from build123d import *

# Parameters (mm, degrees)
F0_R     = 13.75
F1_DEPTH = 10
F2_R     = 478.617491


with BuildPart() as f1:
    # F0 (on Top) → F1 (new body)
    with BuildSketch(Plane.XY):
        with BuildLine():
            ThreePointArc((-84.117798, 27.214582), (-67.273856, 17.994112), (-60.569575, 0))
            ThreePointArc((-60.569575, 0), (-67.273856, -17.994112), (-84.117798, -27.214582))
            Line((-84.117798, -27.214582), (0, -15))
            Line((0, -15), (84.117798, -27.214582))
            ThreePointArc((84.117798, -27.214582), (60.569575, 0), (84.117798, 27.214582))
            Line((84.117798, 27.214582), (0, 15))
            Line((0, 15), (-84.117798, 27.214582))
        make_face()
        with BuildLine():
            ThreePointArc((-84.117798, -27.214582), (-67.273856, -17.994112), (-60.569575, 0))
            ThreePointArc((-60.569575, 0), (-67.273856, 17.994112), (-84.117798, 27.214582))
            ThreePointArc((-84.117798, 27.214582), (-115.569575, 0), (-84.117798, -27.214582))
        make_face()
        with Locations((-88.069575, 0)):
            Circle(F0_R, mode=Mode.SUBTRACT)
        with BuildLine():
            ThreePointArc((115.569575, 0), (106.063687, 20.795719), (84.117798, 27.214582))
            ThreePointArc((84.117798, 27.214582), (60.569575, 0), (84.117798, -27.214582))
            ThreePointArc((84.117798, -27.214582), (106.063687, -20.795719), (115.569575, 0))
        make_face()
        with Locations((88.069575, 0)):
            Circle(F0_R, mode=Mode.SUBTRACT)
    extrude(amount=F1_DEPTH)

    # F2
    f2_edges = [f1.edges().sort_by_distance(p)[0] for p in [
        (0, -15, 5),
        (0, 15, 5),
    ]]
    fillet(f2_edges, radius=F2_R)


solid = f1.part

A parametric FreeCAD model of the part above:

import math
import FreeCAD as App
import Part
import Sketcher


def edges_at(feature, points):
    """Names of the edges that pass closest to the given points."""
    edges = feature.Shape.Edges
    near = lambda p: min(range(len(edges)), key=lambda i: edges[i].distToShape(Part.Vertex(*p))[0])
    return sorted({f"Edge{near(p) + 1}" for p in points})

doc = App.newDocument("Part")
body = doc.addObject("PartDesign::Body", "Body")

sketch1 = body.newObject("Sketcher::SketchObject", "Sketch")
sketch1.AttachmentSupport = (doc.getObject("XY_Plane"), [""])
sketch1.MapMode = "FlatFace"
sketch1.addGeometry(Part.LineSegment(App.Vector(-84, -27, 0), App.Vector(0, -15, 0)), False)
sketch1.addGeometry(Part.LineSegment(App.Vector(0, -15, 0), App.Vector(84, -27, 0)), False)
sketch1.addGeometry(Part.ArcOfCircle(Part.Circle(App.Vector(88, 0, 0), App.Vector(0, 0, 1), 28), math.radians(-98), math.radians(0)), False)
sketch1.addGeometry(Part.ArcOfCircle(Part.Circle(App.Vector(88, 0, 0), App.Vector(0, 0, 1), 28), math.radians(0), math.radians(98)), False)
sketch1.addGeometry(Part.LineSegment(App.Vector(84, 27, 0), App.Vector(0, 15, 0)), False)
sketch1.addGeometry(Part.LineSegment(App.Vector(0, 15, 0), App.Vector(-84, 27, 0)), False)
sketch1.addGeometry(Part.ArcOfCircle(Part.Circle(App.Vector(-88, 0, 0), App.Vector(0, 0, 1), 28), math.radians(82), math.radians(278)), False)
sketch1.addGeometry(Part.Circle(App.Vector(-88, 0, 0), App.Vector(0, 0, 1), 14), False)
sketch1.addGeometry(Part.Circle(App.Vector(88, 0, 0), App.Vector(0, 0, 1), 14), False)
sketch1.addConstraint(Sketcher.Constraint("Coincident", 0, 2, 1, 1))
sketch1.addConstraint(Sketcher.Constraint("Tangent", 1, 2, 2, 1))
sketch1.addConstraint(Sketcher.Constraint("Tangent", 2, 2, 3, 1))
sketch1.addConstraint(Sketcher.Constraint("Tangent", 3, 2, 4, 1))
sketch1.addConstraint(Sketcher.Constraint("Coincident", 4, 2, 5, 1))
sketch1.addConstraint(Sketcher.Constraint("Tangent", 5, 2, 6, 1))
sketch1.addConstraint(Sketcher.Constraint("Tangent", 6, 2, 0, 1))
sketch1.addConstraint(Sketcher.Constraint("Coincident", 7, 3, 6, 3))
sketch1.addConstraint(Sketcher.Constraint("Coincident", 8, 3, 2, 3))
sketch1.addConstraint(Sketcher.Constraint("Equal", 2, 3))
sketch1.addConstraint(Sketcher.Constraint("Equal", 3, 6))
sketch1.addConstraint(Sketcher.Constraint("Equal", 7, 8))
sketch1.addConstraint(Sketcher.Constraint("Symmetric", 2, 3, 6, 3, -1, 1))
sketch1.addConstraint(Sketcher.Constraint("Symmetric", 0, 2, 4, 2, -1, 1))
sketch1.addConstraint(Sketcher.Constraint("Symmetric", 3, 2, 5, 2, -2))
sketch1.addConstraint(Sketcher.Constraint("PointOnObject", 2, 2, -1))
sketch1.addConstraint(Sketcher.Constraint("Diameter", 7, 27.5))
sketch1.addConstraint(Sketcher.Constraint("Radius", 2, 27.500001))
sketch1.addConstraint(Sketcher.Constraint("Distance", 0, 85.0))
sketch1.addConstraint(Sketcher.Constraint("DistanceY", 0, 2, -1, 1, 15.0))
pad1 = body.newObject("PartDesign::Pad", "Pad")
pad1.Profile = sketch1
pad1.Length = 10
doc.recompute()

fillet = body.newObject("PartDesign::Fillet", "Fillet")
fillet.Base = (pad1, edges_at(pad1, [(0, -15, 5), (0, 15, 5)]))
fillet.Radius = 478.617491

doc.recompute()
